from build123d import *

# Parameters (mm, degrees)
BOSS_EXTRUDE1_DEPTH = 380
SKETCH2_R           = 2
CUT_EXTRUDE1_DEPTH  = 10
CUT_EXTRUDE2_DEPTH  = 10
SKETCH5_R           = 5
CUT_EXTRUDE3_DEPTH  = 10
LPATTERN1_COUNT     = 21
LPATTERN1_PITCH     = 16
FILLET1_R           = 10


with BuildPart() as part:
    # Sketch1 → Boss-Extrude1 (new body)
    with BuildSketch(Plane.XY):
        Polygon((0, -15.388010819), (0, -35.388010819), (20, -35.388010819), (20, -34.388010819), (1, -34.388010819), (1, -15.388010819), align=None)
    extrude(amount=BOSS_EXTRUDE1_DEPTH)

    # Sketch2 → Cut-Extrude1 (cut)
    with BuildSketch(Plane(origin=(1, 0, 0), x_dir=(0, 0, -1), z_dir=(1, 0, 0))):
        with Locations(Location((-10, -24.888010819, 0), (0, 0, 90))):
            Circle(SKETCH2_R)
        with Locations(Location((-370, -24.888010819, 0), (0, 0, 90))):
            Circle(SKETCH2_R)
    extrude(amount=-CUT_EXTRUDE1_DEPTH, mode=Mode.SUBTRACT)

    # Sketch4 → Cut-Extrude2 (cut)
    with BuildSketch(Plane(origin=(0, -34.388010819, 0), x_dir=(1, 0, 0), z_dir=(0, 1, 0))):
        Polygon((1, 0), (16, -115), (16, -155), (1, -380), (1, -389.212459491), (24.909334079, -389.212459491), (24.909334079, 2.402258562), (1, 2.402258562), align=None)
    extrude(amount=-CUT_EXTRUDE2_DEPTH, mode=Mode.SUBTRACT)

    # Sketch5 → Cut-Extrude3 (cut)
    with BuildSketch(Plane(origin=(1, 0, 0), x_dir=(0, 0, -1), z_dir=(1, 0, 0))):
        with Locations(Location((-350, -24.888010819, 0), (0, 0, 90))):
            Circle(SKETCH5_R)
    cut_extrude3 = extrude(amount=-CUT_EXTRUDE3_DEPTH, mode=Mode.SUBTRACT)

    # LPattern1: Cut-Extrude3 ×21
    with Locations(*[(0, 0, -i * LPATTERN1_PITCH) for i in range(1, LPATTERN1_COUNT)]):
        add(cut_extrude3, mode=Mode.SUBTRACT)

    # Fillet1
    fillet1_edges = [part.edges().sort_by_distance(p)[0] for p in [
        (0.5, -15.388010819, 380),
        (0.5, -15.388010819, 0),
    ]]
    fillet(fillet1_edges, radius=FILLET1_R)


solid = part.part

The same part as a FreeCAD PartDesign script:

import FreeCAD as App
import Part
import Sketcher
from FreeCAD import Vector
Q = App.Units.Quantity


def edges_at(feature, points):
    """Names of the edges that pass closest to the given points."""
    edges = feature.Shape.Edges
    near = lambda p: min(range(len(edges)), key=lambda i: edges[i].distToShape(Part.Vertex(*p))[0])
    return sorted({f"Edge{near(p) + 1}" for p in points})

doc = App.newDocument("Part")
params = doc.addObject("Spreadsheet::Sheet", "Params")
for row, (alias, value) in enumerate([
    ("sketch1_width", "20 mm"),
    ("sketch1_width2", "19 mm"),
    ("pad1_length", "380 mm"),
    ("sketch2_diameter", "4 mm"),
    ("pocket1_length", "10 mm"),
    ("sketch3_height", "40 mm"),
    ("pocket2_length", "10 mm"),
    ("sketch4_diameter", "10 mm"),
    ("pocket3_length", "10 mm"),
    ("linearpattern_pitch", "16 mm"),
    ("fillet_radius", "10 mm"),
], start=1):
    params.set(f"A{row}", alias)
    params.set(f"B{row}", "=" + value)
    params.setAlias(f"B{row}", alias)

body = doc.addObject("PartDesign::Body", "Body")

sketch1 = body.newObject("Sketcher::SketchObject", "Sketch")
sketch1.AttachmentSupport = (doc.getObject("XY_Plane"), [""])
sketch1.MapMode = "FlatFace"
sketch1.addGeometry([
    Part.LineSegment(Vector(0, -15.4, 0), Vector(0, -35.4, 0)),
    Part.LineSegment(Vector(0, -35.4, 0), Vector(20, -35.4, 0)),
    Part.LineSegment(Vector(20, -35.4, 0), Vector(20, -34.4, 0)),
    Part.LineSegment(Vector(20, -34.4, 0), Vector(1, -34.4, 0)),
    Part.LineSegment(Vector(1, -34.4, 0), Vector(1, -15.4, 0)),
    Part.LineSegment(Vector(1, -15.4, 0), Vector(0, -15.4, 0)),
], False)
sketch1.addConstraint([
    Sketcher.Constraint("Coincident", 0, 2, 1, 1),
    Sketcher.Constraint("Coincident", 1, 2, 2, 1),
    Sketcher.Constraint("Coincident", 2, 2, 3, 1),
    Sketcher.Constraint("Coincident", 3, 2, 4, 1),
    Sketcher.Constraint("Coincident", 4, 2, 5, 1),
    Sketcher.Constraint("Coincident", 5, 2, 0, 1),
    Sketcher.Constraint("Vertical", 0),
    Sketcher.Constraint("Horizontal", 1),
    Sketcher.Constraint("Vertical", 2),
    Sketcher.Constraint("Horizontal", 3),
    Sketcher.Constraint("Vertical", 4),
    Sketcher.Constraint("Horizontal", 5),
    Sketcher.Constraint("PointOnObject", 0, 2, -2),
    Sketcher.Constraint("Equal", 1, 0),
    Sketcher.Constraint("Equal", 5, 2),
    Sketcher.Constraint("DistanceX", 1, 1, 1, 2, Q("20 mm")),
    Sketcher.Constraint("DistanceX", 3, 2, 3, 1, Q("19 mm")),
    Sketcher.Constraint("DistanceY", 0, 2, -1, 1, Q("35.388011 mm")),
])
sketch1.setExpression("Constraints[15]", "Params.sketch1_width")
sketch1.setExpression("Constraints[16]", "Params.sketch1_width2")
pad1 = body.newObject("PartDesign::Pad", "Pad")
pad1.Profile = sketch1
pad1.setExpression("Length", "Params.pad1_length")

sketch2 = body.newObject("Sketcher::SketchObject", "Sketch001")
sketch2.AttachmentSupport = (doc.getObject("YZ_Plane"), [""])
sketch2.MapMode = "FlatFace"
sketch2.AttachmentOffset = App.Placement(Vector(0, 0, 1), App.Rotation())
sketch2.addGeometry([
    Part.Circle(Vector(-24.9, 10, 0), Vector(0, 0, 1), 2),
    Part.Circle(Vector(-24.9, 370, 0), Vector(0, 0, 1), 2),
], False)
sketch2.addConstraint([
    Sketcher.Constraint("Equal", 0, 1),
    Sketcher.Constraint("Vertical", 0, 3, 1, 3),
    Sketcher.Constraint("Diameter", 0, Q("4 mm")),
    Sketcher.Constraint("DistanceY", -1, 1, 0, 3, Q("10 mm")),
    Sketcher.Constraint("DistanceY", -1, 1, 1, 3, Q("370 mm")),
    Sketcher.Constraint("DistanceX", 0, 3, -1, 1, Q("24.888011 mm")),
])
sketch2.setExpression("Constraints[2]", "Params.sketch2_diameter")
pocket1 = body.newObject("PartDesign::Pocket", "Pocket")
pocket1.Profile = sketch2
pocket1.setExpression("Length", "Params.pocket1_length")

sketch3 = body.newObject("Sketcher::SketchObject", "Sketch002")
sketch3.AttachmentSupport = (doc.getObject("XZ_Plane"), [""])
sketch3.MapMode = "FlatFace"
sketch3.AttachmentOffset = App.Placement(Vector(0, 0, 34.388011), App.Rotation())
sketch3.addGeometry([
    Part.LineSegment(Vector(1, 0, 0), Vector(16, 115, 0)),
    Part.LineSegment(Vector(16, 115, 0), Vector(16, 155, 0)),
    Part.LineSegment(Vector(16, 155, 0), Vector(1, 380, 0)),
    Part.LineSegment(Vector(1, 380, 0), Vector(1, 389.2, 0)),
    Part.LineSegment(Vector(1, 389.2, 0), Vector(24.9, 389.2, 0)),
    Part.LineSegment(Vector(24.9, 389.2, 0), Vector(24.9, -2.4, 0)),
    Part.LineSegment(Vector(24.9, -2.4, 0), Vector(1, -2.4, 0)),
    Part.LineSegment(Vector(1, -2.4, 0), Vector(1, 0, 0)),
], False)
sketch3.addConstraint([
    Sketcher.Constraint("Coincident", 0, 2, 1, 1),
    Sketcher.Constraint("Coincident", 1, 2, 2, 1),
    Sketcher.Constraint("Coincident", 2, 2, 3, 1),
    Sketcher.Constraint("Coincident", 3, 2, 4, 1),
    Sketcher.Constraint("Coincident", 4, 2, 5, 1),
    Sketcher.Constraint("Coincident", 5, 2, 6, 1),
    Sketcher.Constraint("Coincident", 6, 2, 7, 1),
    Sketcher.Constraint("Coincident", 7, 2, 0, 1),
    Sketcher.Constraint("Vertical", 1),
    Sketcher.Constraint("Vertical", 3),
    Sketcher.Constraint("Horizontal", 4),
    Sketcher.Constraint("Vertical", 5),
    Sketcher.Constraint("Horizontal", 6),
    Sketcher.Constraint("Vertical", 7),
    Sketcher.Constraint("PointOnObject", 7, 2, -1),
    Sketcher.Constraint("Vertical", 3, 2, 6, 2),
    Sketcher.Constraint("DistanceY", 1, 1, 1, 2, Q("40 mm")),
    Sketcher.Constraint("DistanceX", -1, 1, 0, 2, Q("16 mm")),
    Sketcher.Constraint("DistanceY", -1, 1, 0, 2, Q("115 mm")),
    Sketcher.Constraint("DistanceX", -1, 1, 2, 2, Q("1 mm")),
    Sketcher.Constraint("DistanceY", -1, 1, 2, 2, Q("380 mm")),
    Sketcher.Constraint("DistanceY", 3, 1, 3, 2, Q("9.212459 mm")),
    Sketcher.Constraint("DistanceY", 5, 2, 5, 1, Q("391.614718 mm")),
    Sketcher.Constraint("DistanceX", 4, 1, 4, 2, Q("23.909334 mm")),
])
sketch3.setExpression("Constraints[16]", "Params.sketch3_height")
pocket2 = body.newObject("PartDesign::Pocket", "Pocket001")
pocket2.Profile = sketch3
pocket2.setExpression("Length", "Params.pocket2_length")
pocket2.Reversed = True

sketch4 = body.newObject("Sketcher::SketchObject", "Sketch003")
sketch4.AttachmentSupport = (doc.getObject("YZ_Plane"), [""])
sketch4.MapMode = "FlatFace"
sketch4.AttachmentOffset = App.Placement(Vector(0, 0, 1), App.Rotation())
sketch4.addGeometry(Part.Circle(Vector(-25, 350, 0), Vector(0, 0, 1), 5), False)
sketch4.addConstraint([
    Sketcher.Constraint("Diameter", 0, Q("10 mm")),
    Sketcher.Constraint("DistanceY", -1, 1, 0, 3, Q("350 mm")),
    Sketcher.Constraint("DistanceX", 0, 3, -1, 1, Q("24.888011 mm")),
])
sketch4.setExpression("Constraints[0]", "Params.sketch4_diameter")
pocket3 = body.newObject("PartDesign::Pocket", "Pocket002")
pocket3.Profile = sketch4
pocket3.setExpression("Length", "Params.pocket3_length")
doc.recompute()

linearpattern = body.newObject("PartDesign::LinearPattern", "LinearPattern")
linearpattern.Originals = [pocket3]
linearpattern.Direction = (doc.getObject("Z_Axis"), [""])
linearpattern.Mode = "offset"
linearpattern.setExpression("Offset", "Params.linearpattern_pitch")
linearpattern.Occurrences = 21
linearpattern.Reversed = True
body.Tip = linearpattern
doc.recompute()

fillet = body.newObject("PartDesign::Fillet", "Fillet")
fillet.Base = (linearpattern, edges_at(linearpattern, [(0.5, -15.388, 380), (0.5, -15.388, 0)]))
fillet.setExpression("Radius", "Params.fillet_radius")

doc.recompute()
